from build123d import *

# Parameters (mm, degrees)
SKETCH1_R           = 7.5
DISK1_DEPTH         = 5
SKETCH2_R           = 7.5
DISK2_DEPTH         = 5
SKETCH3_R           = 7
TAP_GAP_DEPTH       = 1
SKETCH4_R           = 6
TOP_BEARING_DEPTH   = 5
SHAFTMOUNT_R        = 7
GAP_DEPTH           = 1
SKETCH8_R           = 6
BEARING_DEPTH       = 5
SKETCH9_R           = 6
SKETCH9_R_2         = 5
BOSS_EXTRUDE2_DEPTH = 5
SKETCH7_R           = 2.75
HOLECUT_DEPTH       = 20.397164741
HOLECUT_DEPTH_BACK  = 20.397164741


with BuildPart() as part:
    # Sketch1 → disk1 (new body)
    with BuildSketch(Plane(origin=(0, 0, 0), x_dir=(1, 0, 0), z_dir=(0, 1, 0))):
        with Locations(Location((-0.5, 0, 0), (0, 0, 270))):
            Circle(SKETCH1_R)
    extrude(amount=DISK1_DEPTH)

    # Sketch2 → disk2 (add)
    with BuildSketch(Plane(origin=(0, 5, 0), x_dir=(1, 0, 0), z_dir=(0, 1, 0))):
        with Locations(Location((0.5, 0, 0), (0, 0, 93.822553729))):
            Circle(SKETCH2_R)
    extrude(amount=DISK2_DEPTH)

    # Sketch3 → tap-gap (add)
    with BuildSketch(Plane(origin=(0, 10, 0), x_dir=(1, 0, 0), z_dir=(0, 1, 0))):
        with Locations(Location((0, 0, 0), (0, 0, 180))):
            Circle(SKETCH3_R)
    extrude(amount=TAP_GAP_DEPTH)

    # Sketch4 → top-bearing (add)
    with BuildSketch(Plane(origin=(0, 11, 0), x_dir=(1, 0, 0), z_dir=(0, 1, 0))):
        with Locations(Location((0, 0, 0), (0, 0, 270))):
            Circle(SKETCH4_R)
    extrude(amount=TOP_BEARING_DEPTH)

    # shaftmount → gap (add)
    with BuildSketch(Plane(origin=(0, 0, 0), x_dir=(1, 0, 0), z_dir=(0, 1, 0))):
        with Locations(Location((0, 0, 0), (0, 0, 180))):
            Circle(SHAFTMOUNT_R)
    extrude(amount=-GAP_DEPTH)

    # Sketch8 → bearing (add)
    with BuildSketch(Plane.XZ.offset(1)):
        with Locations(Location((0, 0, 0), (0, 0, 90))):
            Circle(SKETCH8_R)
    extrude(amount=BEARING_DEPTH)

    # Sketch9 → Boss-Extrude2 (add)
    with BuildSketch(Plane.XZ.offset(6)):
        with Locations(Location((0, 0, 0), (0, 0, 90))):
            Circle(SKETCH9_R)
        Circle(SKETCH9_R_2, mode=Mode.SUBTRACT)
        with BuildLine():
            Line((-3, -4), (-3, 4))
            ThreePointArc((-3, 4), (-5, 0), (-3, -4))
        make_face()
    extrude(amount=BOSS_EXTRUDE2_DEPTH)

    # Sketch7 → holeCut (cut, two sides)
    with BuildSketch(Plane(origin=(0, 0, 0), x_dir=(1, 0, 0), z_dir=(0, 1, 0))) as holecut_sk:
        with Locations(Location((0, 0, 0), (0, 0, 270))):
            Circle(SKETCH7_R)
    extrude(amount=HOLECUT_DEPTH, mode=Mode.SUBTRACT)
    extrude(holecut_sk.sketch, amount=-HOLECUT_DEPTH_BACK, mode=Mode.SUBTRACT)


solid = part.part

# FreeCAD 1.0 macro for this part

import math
import FreeCAD as App
import Part
import Sketcher
from FreeCAD import Vector
Q = App.Units.Quantity

doc = App.newDocument("Part")
params = doc.addObject("Spreadsheet::Sheet", "Params")
for row, (alias, value) in enumerate([
    ("sketch1_diameter", "15 mm"),
    ("pad1_length", "5 mm"),
    ("sketch2_diameter", "15 mm"),
    ("pad2_length", "5 mm"),
    ("sketch3_diameter", "14 mm"),
    ("pad3_length", "1 mm"),
    ("sketch4_diameter", "12 mm"),
    ("pad4_length", "5 mm"),
    ("sketch5_diameter", "14 mm"),
    ("pad5_length", "1 mm"),
    ("sketch6_diameter", "12 mm"),
    ("pad6_length", "5 mm"),
    ("sketch7_diameter", "12 mm"),
    ("sketch7_radius", "5 mm"),
    ("sketch7_height", "8 mm"),
    ("pad7_length", "5 mm"),
    ("sketch8_diameter", "5.5 mm"),
], start=1):
    params.set(f"A{row}", alias)
    params.set(f"B{row}", "=" + value)
    params.setAlias(f"B{row}", alias)

body = doc.addObject("PartDesign::Body", "Body")

sketch1 = body.newObject("Sketcher::SketchObject", "Sketch")
sketch1.AttachmentSupport = (doc.getObject("XZ_Plane"), [""])
sketch1.MapMode = "FlatFace"
sketch1.addGeometry(Part.Circle(Vector(0, 0, 0), Vector(0, 0, 1), 8), False)
sketch1.addConstraint([
    Sketcher.Constraint("PointOnObject", 0, 3, -1),
    Sketcher.Constraint("Diameter", 0, Q("15 mm")),
    Sketcher.Constraint("DistanceX", 0, 3, -1, 1, Q("0.5 mm")),
])
sketch1.setExpression("Constraints[1]", "Params.sketch1_diameter")
pad1 = body.newObject("PartDesign::Pad", "Pad")
pad1.Profile = sketch1
pad1.setExpression("Length", "Params.pad1_length")
pad1.Reversed = True

sketch2 = body.newObject("Sketcher::SketchObject", "Sketch001")
sketch2.AttachmentSupport = (doc.getObject("XZ_Plane"), [""])
sketch2.MapMode = "FlatFace"
sketch2.AttachmentOffset = App.Placement(Vector(0, 0, -5), App.Rotation())
sketch2.addGeometry(Part.Circle(Vector(0, 0, 0), Vector(0, 0, 1), 8), False)
sketch2.addConstraint([
    Sketcher.Constraint("PointOnObject", 0, 3, -1),
    Sketcher.Constraint("Diameter", 0, Q("15 mm")),
    Sketcher.Constraint("DistanceX", -1, 1, 0, 3, Q("0.5 mm")),
])
sketch2.setExpression("Constraints[1]", "Params.sketch2_diameter")
pad2 = body.newObject("PartDesign::Pad", "Pad001")
pad2.Profile = sketch2
pad2.setExpression("Length", "Params.pad2_length")
pad2.Reversed = True

sketch3 = body.newObject("Sketcher::SketchObject", "Sketch002")
sketch3.AttachmentSupport = (doc.getObject("XZ_Plane"), [""])
sketch3.MapMode = "FlatFace"
sketch3.AttachmentOffset = App.Placement(Vector(0, 0, -10), App.Rotation())
sketch3.addGeometry(Part.Circle(Vector(0, 0, 0), Vector(0, 0, 1), 7), False)
sketch3.addConstraint([
    Sketcher.Constraint("Coincident", 0, 3, -1, 1),
    Sketcher.Constraint("Diameter", 0, Q("14 mm")),
])
sketch3.setExpression("Constraints[1]", "Params.sketch3_diameter")
pad3 = body.newObject("PartDesign::Pad", "Pad002")
pad3.Profile = sketch3
pad3.setExpression("Length", "Params.pad3_length")
pad3.Reversed = True

sketch4 = body.newObject("Sketcher::SketchObject", "Sketch003")
sketch4.AttachmentSupport = (doc.getObject("XZ_Plane"), [""])
sketch4.MapMode = "FlatFace"
sketch4.AttachmentOffset = App.Placement(Vector(0, 0, -11), App.Rotation())
sketch4.addGeometry(Part.Circle(Vector(0, 0, 0), Vector(0, 0, 1), 6), False)
sketch4.addConstraint([
    Sketcher.Constraint("Coincident", 0, 3, -1, 1),
    Sketcher.Constraint("Diameter", 0, Q("12 mm")),
])
sketch4.setExpression("Constraints[1]", "Params.sketch4_diameter")
pad4 = body.newObject("PartDesign::Pad", "Pad003")
pad4.Profile = sketch4
pad4.setExpression("Length", "Params.pad4_length")
pad4.Reversed = True

sketch5 = body.newObject("Sketcher::SketchObject", "Sketch004")
sketch5.AttachmentSupport = (doc.getObject("XZ_Plane"), [""])
sketch5.MapMode = "FlatFace"
sketch5.addGeometry(Part.Circle(Vector(0, 0, 0), Vector(0, 0, 1), 7), False)
sketch5.addConstraint([
    Sketcher.Constraint("Coincident", 0, 3, -1, 1),
    Sketcher.Constraint("Diameter", 0, Q("14 mm")),
])
sketch5.setExpression("Constraints[1]", "Params.sketch5_diameter")
pad5 = body.newObject("PartDesign::Pad", "Pad004")
pad5.Profile = sketch5
pad5.setExpression("Length", "Params.pad5_length")

sketch6 = body.newObject("Sketcher::SketchObject", "Sketch005")
sketch6.AttachmentSupport = (doc.getObject("XZ_Plane"), [""])
sketch6.MapMode = "FlatFace"
sketch6.AttachmentOffset = App.Placement(Vector(0, 0, 1), App.Rotation())
sketch6.addGeometry(Part.Circle(Vector(0, 0, 0), Vector(0, 0, 1), 6), False)
sketch6.addConstraint([
    Sketcher.Constraint("Coincident", 0, 3, -1, 1),
    Sketcher.Constraint("Diameter", 0, Q("12 mm")),
])
sketch6.setExpression("Constraints[1]", "Params.sketch6_diameter")
pad6 = body.newObject("PartDesign::Pad", "Pad005")
pad6.Profile = sketch6
pad6.setExpression("Length", "Params.pad6_length")

sketch7 = body.newObject("Sketcher::SketchObject", "Sketch006")
sketch7.AttachmentSupport = (doc.getObject("XZ_Plane"), [""])
sketch7.MapMode = "FlatFace"
sketch7.AttachmentOffset = App.Placement(Vector(0, 0, 6), App.Rotation())
sketch7.addGeometry([
    Part.Circle(Vector(0, 0, 0), Vector(0, 0, 1), 6),
    Part.ArcOfCircle(Part.Circle(Vector(0, 0, 0), Vector(0, 0, 1), 5), math.radians(-127), math.radians(127)),
    Part.LineSegment(Vector(-3, -4, 0), Vector(-3, 4, 0)),
], False)
sketch7.addConstraint([
    Sketcher.Constraint("Coincident", 1, 1, 2, 1),
    Sketcher.Constraint("Coincident", 2, 2, 1, 2),
    Sketcher.Constraint("Vertical", 2),
    Sketcher.Constraint("Coincident", 0, 3, -1, 1),
    Sketcher.Constraint("Coincident", 1, 3, -1, 1),
    Sketcher.Constraint("Diameter", 0, Q("12 mm")),
    Sketcher.Constraint("Radius", 1, Q("5 mm")),
    Sketcher.Constraint("DistanceY", 2, 1, 2, 2, Q("8 mm")),
])
sketch7.setExpression("Constraints[5]", "Params.sketch7_diameter")
sketch7.setExpression("Constraints[6]", "Params.sketch7_radius")
sketch7.setExpression("Constraints[7]", "Params.sketch7_height")
pad7 = body.newObject("PartDesign::Pad", "Pad006")
pad7.Profile = sketch7
pad7.setExpression("Length", "Params.pad7_length")

sketch8 = body.newObject("Sketcher::SketchObject", "Sketch007")
sketch8.AttachmentSupport = (doc.getObject("XZ_Plane"), [""])
sketch8.MapMode = "FlatFace"
sketch8.addGeometry(Part.Circle(Vector(0, 0, 0), Vector(0, 0, 1), 2.8), False)
sketch8.addConstraint([
    Sketcher.Constraint("Coincident", 0, 3, -1, 1),
    Sketcher.Constraint("Diameter", 0, Q("5.5 mm")),
])
sketch8.setExpression("Constraints[1]", "Params.sketch8_diameter")
pocket1 = body.newObject("PartDesign::Pocket", "Pocket")
pocket1.Profile = sketch8
pocket1.Type = "ThroughAll"
pocket1.Midplane = True

doc.recompute()
